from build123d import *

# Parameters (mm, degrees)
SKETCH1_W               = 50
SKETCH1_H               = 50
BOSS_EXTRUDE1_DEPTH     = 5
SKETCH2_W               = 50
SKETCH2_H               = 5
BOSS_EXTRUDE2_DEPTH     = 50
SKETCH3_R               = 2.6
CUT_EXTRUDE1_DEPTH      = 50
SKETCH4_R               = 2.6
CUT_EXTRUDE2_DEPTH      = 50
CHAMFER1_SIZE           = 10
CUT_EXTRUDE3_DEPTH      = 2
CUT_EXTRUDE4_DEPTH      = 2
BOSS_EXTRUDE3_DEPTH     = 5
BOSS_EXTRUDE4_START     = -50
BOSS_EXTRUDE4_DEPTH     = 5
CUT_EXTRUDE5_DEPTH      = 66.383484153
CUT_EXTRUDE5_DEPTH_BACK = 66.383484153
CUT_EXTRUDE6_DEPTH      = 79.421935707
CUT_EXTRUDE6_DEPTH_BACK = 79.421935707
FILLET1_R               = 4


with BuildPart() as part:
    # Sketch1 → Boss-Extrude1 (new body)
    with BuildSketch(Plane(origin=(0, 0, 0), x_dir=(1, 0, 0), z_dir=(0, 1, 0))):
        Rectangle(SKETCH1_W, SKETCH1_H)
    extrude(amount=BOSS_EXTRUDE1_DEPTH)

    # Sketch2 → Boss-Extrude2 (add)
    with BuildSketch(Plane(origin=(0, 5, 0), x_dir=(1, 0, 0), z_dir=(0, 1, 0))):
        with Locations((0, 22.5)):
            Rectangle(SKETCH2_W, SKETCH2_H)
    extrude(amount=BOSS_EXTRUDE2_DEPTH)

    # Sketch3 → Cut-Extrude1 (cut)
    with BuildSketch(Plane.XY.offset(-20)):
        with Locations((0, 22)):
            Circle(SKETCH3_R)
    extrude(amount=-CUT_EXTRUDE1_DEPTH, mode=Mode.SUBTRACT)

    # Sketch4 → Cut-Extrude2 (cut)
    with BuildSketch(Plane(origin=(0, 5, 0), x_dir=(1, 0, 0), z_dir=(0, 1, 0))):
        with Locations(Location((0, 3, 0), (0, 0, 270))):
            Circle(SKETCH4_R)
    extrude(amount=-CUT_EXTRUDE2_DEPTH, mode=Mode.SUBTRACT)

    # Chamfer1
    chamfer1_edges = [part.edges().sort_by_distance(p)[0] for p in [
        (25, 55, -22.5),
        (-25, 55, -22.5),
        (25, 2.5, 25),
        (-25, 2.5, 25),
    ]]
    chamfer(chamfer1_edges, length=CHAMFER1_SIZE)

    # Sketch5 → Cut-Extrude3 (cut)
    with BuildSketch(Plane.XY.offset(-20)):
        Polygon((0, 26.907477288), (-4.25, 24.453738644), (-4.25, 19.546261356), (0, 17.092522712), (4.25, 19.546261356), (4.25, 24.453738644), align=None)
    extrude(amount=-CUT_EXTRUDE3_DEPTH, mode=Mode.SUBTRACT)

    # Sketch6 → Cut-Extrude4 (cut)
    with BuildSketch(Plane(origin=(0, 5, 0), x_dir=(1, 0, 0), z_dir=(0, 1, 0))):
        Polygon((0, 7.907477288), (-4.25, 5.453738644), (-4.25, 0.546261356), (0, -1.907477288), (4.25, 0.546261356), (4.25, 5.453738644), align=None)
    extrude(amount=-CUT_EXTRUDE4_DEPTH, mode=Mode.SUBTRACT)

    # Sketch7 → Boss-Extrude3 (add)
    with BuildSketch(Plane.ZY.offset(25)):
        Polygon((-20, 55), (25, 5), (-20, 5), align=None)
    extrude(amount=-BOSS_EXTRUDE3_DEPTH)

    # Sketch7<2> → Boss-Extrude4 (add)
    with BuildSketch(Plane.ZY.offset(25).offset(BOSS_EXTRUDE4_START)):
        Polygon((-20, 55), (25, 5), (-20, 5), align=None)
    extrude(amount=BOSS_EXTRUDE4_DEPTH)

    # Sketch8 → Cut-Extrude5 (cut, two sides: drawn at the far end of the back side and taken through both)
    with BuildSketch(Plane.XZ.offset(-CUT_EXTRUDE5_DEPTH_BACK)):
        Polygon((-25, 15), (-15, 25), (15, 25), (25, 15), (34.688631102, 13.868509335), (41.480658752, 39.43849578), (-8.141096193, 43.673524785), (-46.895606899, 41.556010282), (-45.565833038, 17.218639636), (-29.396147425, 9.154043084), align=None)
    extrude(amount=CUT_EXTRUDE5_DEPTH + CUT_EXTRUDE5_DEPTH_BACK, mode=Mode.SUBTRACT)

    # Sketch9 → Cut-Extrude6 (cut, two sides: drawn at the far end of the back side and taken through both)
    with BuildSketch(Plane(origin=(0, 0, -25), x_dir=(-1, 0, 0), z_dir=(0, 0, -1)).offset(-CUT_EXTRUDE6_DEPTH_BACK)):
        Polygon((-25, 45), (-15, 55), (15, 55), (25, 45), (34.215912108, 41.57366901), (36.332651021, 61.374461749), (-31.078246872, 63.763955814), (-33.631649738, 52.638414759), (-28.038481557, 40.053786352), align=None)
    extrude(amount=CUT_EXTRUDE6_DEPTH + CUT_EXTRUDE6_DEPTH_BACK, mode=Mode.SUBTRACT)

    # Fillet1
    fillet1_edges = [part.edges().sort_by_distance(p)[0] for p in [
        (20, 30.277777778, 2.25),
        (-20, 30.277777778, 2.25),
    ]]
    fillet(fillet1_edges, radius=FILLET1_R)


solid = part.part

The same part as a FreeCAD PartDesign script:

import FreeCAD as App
import Part
import Sketcher
from FreeCAD import Vector
Q = App.Units.Quantity


def edges_at(feature, points):
    """Names of the edges that pass closest to the given points."""
    edges = feature.Shape.Edges
    near = lambda p: min(range(len(edges)), key=lambda i: edges[i].distToShape(Part.Vertex(*p))[0])
    return sorted({f"Edge{near(p) + 1}" for p in points})


def add_polygon(sketch, points):
    """Adds a closed chain of lines whose ends are joined by coincident constraints."""
    first, n = sketch.GeometryCount, len(points)
    for a, b in zip(points, points[1:] + points[:1]):
        sketch.addGeometry(Part.LineSegment(App.Vector(*a, 0), App.Vector(*b, 0)), False)
    for i in range(n):
        sketch.addConstraint(Sketcher.Constraint("Coincident", first + i, 2, first + (i + 1) % n, 1))

doc = App.newDocument("Part")
body = doc.addObject("PartDesign::Body", "Body")

sketch1 = doc.addObject("Sketcher::SketchObject", "Sketch")
body.addObject(sketch1)
sketch1.AttachmentSupport = (doc.XZ_Plane, [""])
sketch1.MapMode = "FlatFace"
add_polygon(sketch1, [(-25, -25), (-25, 25), (25, 25), (25, -25)])
sketch1.addConstraint(Sketcher.Constraint("Vertical", 0))
sketch1.addConstraint(Sketcher.Constraint("Horizontal", 1))
sketch1.addConstraint(Sketcher.Constraint("Vertical", 2))
sketch1.addConstraint(Sketcher.Constraint("Horizontal", 3))
sketch1.addConstraint(Sketcher.Constraint("Symmetric", 0, 2, 2, 2, -1, 1))
sketch1.addConstraint(Sketcher.Constraint("Equal", 3, 0))
sketch1.addConstraint(Sketcher.Constraint("DistanceX", 1, 1, 1, 2, 50.0))
pad1 = doc.addObject("PartDesign::Pad", "Pad")
body.addObject(pad1)
pad1.Profile = sketch1
pad1.Length = 5
pad1.Reversed = True

sketch2 = doc.addObject("Sketcher::SketchObject", "Sketch001")
body.addObject(sketch2)
sketch2.AttachmentSupport = (doc.XZ_Plane, [""])
sketch2.MapMode = "FlatFace"
sketch2.AttachmentOffset = App.Placement(Vector(0, 0, -5), App.Rotation())
add_polygon(sketch2, [(-25, -25), (-25, -20), (25, -20), (25, -25)])
sketch2.addConstraint(Sketcher.Constraint("Vertical", 0))
sketch2.addConstraint(Sketcher.Constraint("Horizontal", 1))
sketch2.addConstraint(Sketcher.Constraint("Vertical", 2))
sketch2.addConstraint(Sketcher.Constraint("Horizontal", 3))
sketch2.addConstraint(Sketcher.Constraint("DistanceX", 1, 1, 1, 2, 50.0))
sketch2.addConstraint(Sketcher.Constraint("DistanceY", 0, 1, 0, 2, 5.0))
sketch2.addConstraint(Sketcher.Constraint("DistanceX", 0, 2, -1, 1, 25.0))
sketch2.addConstraint(Sketcher.Constraint("DistanceY", 0, 2, -1, 1, 20.0))
pad2 = doc.addObject("PartDesign::Pad", "Pad001")
body.addObject(pad2)
pad2.Profile = sketch2
pad2.Length = 50
pad2.Reversed = True

sketch3 = doc.addObject("Sketcher::SketchObject", "Sketch002")
body.addObject(sketch3)
sketch3.AttachmentSupport = (doc.XY_Plane, [""])
sketch3.MapMode = "FlatFace"
sketch3.AttachmentOffset = App.Placement(Vector(0, 0, -20), App.Rotation())
sketch3.addGeometry(Part.Circle(Vector(0, 22, 0), Vector(0, 0, 1), 2.6), False)
sketch3.addConstraint(Sketcher.Constraint("PointOnObject", 0, 3, -2))
sketch3.addConstraint(Sketcher.Constraint("Diameter", 0, 5.2))
sketch3.addConstraint(Sketcher.Constraint("DistanceY", -1, 1, 0, 3, 22.0))
pocket1 = doc.addObject("PartDesign::Pocket", "Pocket")
body.addObject(pocket1)
pocket1.Profile = sketch3
pocket1.Length = 50

sketch4 = doc.addObject("Sketcher::SketchObject", "Sketch003")
body.addObject(sketch4)
sketch4.AttachmentSupport = (doc.XZ_Plane, [""])
sketch4.MapMode = "FlatFace"
sketch4.AttachmentOffset = App.Placement(Vector(0, 0, -5), App.Rotation())
sketch4.addGeometry(Part.Circle(Vector(0, -3, 0), Vector(0, 0, 1), 2.6), False)
sketch4.addConstraint(Sketcher.Constraint("PointOnObject", 0, 3, -2))
sketch4.addConstraint(Sketcher.Constraint("Diameter", 0, 5.2))
sketch4.addConstraint(Sketcher.Constraint("DistanceY", 0, 3, -1, 1, 3.0))
pocket2 = doc.addObject("PartDesign::Pocket", "Pocket001")
body.addObject(pocket2)
pocket2.Profile = sketch4
pocket2.Length = 50
pocket2.Reversed = True
doc.recompute()

chamfer = doc.addObject("PartDesign::Chamfer", "Chamfer")
body.addObject(chamfer)
chamfer.Base = (pocket2, edges_at(pocket2, [
    (25, 55, -22.5),
    (-25, 55, -22.5),
    (25, 2.5, 25),
    (-25, 2.5, 25),
]))
chamfer.Size = 10

sketch5 = doc.addObject("Sketcher::SketchObject", "Sketch004")
body.addObject(sketch5)
sketch5.AttachmentSupport = (doc.XY_Plane, [""])
sketch5.MapMode = "FlatFace"
sketch5.AttachmentOffset = App.Placement(Vector(0, 0, -20), App.Rotation())
add_polygon(sketch5, [(0, 26.907477), (-4.25, 24.453739), (-4.25, 19.546261), (0, 17.092523), (4.25, 19.546261), (4.25, 24.453739)])
sketch5.addConstraint(Sketcher.Constraint("Vertical", 1))
sketch5.addConstraint(Sketcher.Constraint("Vertical", 4))
sketch5.addConstraint(Sketcher.Constraint("Symmetric", 1, 2, 3, 2, -2))
sketch5.addConstraint(Sketcher.Constraint("PointOnObject", 2, 2, -2))
sketch5.addConstraint(Sketcher.Constraint("PointOnObject", 5, 2, -2))
sketch5.addConstraint(Sketcher.Constraint("Parallel", 0, 3))
sketch5.addConstraint(Sketcher.Constraint("Parallel", 2, 5))
sketch5.addConstraint(Sketcher.Constraint("Angle", 0, Q("-150 deg")))
sketch5.addConstraint(Sketcher.Constraint("DistanceX", 1, 2, 3, 2, 8.5))
sketch5.addConstraint(Sketcher.Constraint("DistanceY", 1, 2, 1, 1, 4.907477))
sketch5.addConstraint(Sketcher.Constraint("DistanceY", -1, 1, 0, 2, 24.453739))
pocket3 = doc.addObject("PartDesign::Pocket", "Pocket002")
body.addObject(pocket3)
pocket3.Profile = sketch5
pocket3.Length = 2

sketch6 = doc.addObject("Sketcher::SketchObject", "Sketch005")
body.addObject(sketch6)
sketch6.AttachmentSupport = (doc.XZ_Plane, [""])
sketch6.MapMode = "FlatFace"
sketch6.AttachmentOffset = App.Placement(Vector(0, 0, -5), App.Rotation())
add_polygon(sketch6, [(0, -7.907477), (-4.25, -5.453739), (-4.25, -0.546261), (0, 1.907477), (4.25, -0.546261), (4.25, -5.453739)])
sketch6.addConstraint(Sketcher.Constraint("Vertical", 1))
sketch6.addConstraint(Sketcher.Constraint("Vertical", 4))
sketch6.addConstraint(Sketcher.Constraint("Symmetric", 1, 2, 3, 2, -2))
sketch6.addConstraint(Sketcher.Constraint("PointOnObject", 2, 2, -2))
sketch6.addConstraint(Sketcher.Constraint("PointOnObject", 5, 2, -2))
sketch6.addConstraint(Sketcher.Constraint("Parallel", 0, 3))
sketch6.addConstraint(Sketcher.Constraint("Parallel", 2, 5))
sketch6.addConstraint(Sketcher.Constraint("Angle", 0, Q("150 deg")))
sketch6.addConstraint(Sketcher.Constraint("DistanceX", 1, 2, 3, 2, 8.5))
sketch6.addConstraint(Sketcher.Constraint("DistanceY", 1, 1, 1, 2, 4.907477))
sketch6.addConstraint(Sketcher.Constraint("DistanceY", 0, 2, -1, 1, 5.453739))
pocket4 = doc.addObject("PartDesign::Pocket", "Pocket003")
body.addObject(pocket4)
pocket4.Profile = sketch6
pocket4.Length = 2
pocket4.Reversed = True

sketch7 = doc.addObject("Sketcher::SketchObject", "Sketch006")
body.addObject(sketch7)
sketch7.AttachmentSupport = (doc.YZ_Plane, [""])
sketch7.MapMode = "FlatFace"
sketch7.AttachmentOffset = App.Placement(Vector(0, 0, -25), App.Rotation())
add_polygon(sketch7, [(5, 25), (55, -20), (5, -20)])
sketch7.addConstraint(Sketcher.Constraint("Horizontal", 1))
sketch7.addConstraint(Sketcher.Constraint("Vertical", 2))
sketch7.addConstraint(Sketcher.Constraint("DistanceX", 1, 2, 1, 1, 50.0))
sketch7.addConstraint(Sketcher.Constraint("DistanceY", 2, 1, 2, 2, 45.0))
sketch7.addConstraint(Sketcher.Constraint("DistanceX", -1, 1, 0, 2, 55.0))
sketch7.addConstraint(Sketcher.Constraint("DistanceY", 0, 2, -1, 1, 20.0))
pad3 = doc.addObject("PartDesign::Pad", "Pad002")
body.addObject(pad3)
pad3.Profile = sketch7
pad3.Length = 5

sketch8 = doc.addObject("Sketcher::SketchObject", "Sketch007")
body.addObject(sketch8)
sketch8.AttachmentSupport = (doc.YZ_Plane, [""])
sketch8.MapMode = "FlatFace"
sketch8.AttachmentOffset = App.Placement(Vector(0, 0, 25), App.Rotation())
add_polygon(sketch8, [(5, 25), (55, -20), (5, -20)])
sketch8.addConstraint(Sketcher.Constraint("Horizontal", 1))
sketch8.addConstraint(Sketcher.Constraint("Vertical", 2))
sketch8.addConstraint(Sketcher.Constraint("DistanceX", 1, 2, 1, 1, 50.0))
sketch8.addConstraint(Sketcher.Constraint("DistanceY", 2, 1, 2, 2, 45.0))
sketch8.addConstraint(Sketcher.Constraint("DistanceX", -1, 1, 0, 2, 55.0))
sketch8.addConstraint(Sketcher.Constraint("DistanceY", 0, 2, -1, 1, 20.0))
pad4 = doc.addObject("PartDesign::Pad", "Pad003")
body.addObject(pad4)
pad4.Profile = sketch8
pad4.Length = 5
pad4.Reversed = True

sketch9 = doc.addObject("Sketcher::SketchObject", "Sketch008")
body.addObject(sketch9)
sketch9.AttachmentSupport = (doc.XZ_Plane, [""])
sketch9.MapMode = "FlatFace"
add_polygon(sketch9, [(-25, 15), (-15, 25), (15, 25), (25, 15), (34.688631, 13.868509), (41.480659, 39.438496), (-8.141096, 43.673525), (-46.895607, 41.55601), (-45.565833, 17.21864), (-29.396147, 9.154043)])
sketch9.addConstraint(Sketcher.Constraint("Horizontal", 1))
sketch9.addConstraint(Sketcher.Constraint("Symmetric", 2, 2, 9, 2, -2))
sketch9.addConstraint(Sketcher.Constraint("Perpendicular", 0, 2))
sketch9.addConstraint(Sketcher.Constraint("Perpendicular", 6, 7))
sketch9.addConstraint(Sketcher.Constraint("Equal", 0, 2))
sketch9.addConstraint(Sketcher.Constraint("DistanceX", 1, 1, 1, 2, 30.0))
sketch9.addConstraint(Sketcher.Constraint("DistanceY", -1, 1, 0, 2, 25.0))
sketch9.addConstraint(Sketcher.Constraint("DistanceX", -1, 1, 2, 2, 25.0))
sketch9.addConstraint(Sketcher.Constraint("DistanceY", 3, 2, 6, 2, 27.687501))
sketch9.addConstraint(Sketcher.Constraint("Distance", 3, 9.754478))
sketch9.addConstraint(Sketcher.Constraint("Distance", 4, 26.456679))
sketch9.addConstraint(Sketcher.Constraint("Distance", 5, 49.802149))
sketch9.addConstraint(Sketcher.Constraint("Distance", 9, 7.31446))
sketch9.addConstraint(Sketcher.Constraint("DistanceX", -1, 1, 3, 2, 34.688631))
sketch9.addConstraint(Sketcher.Constraint("DistanceX", -1, 1, 4, 2, 41.480659))
sketch9.addConstraint(Sketcher.Constraint("DistanceY", -1, 1, 7, 2, 17.21864))
sketch9.addConstraint(Sketcher.Constraint("DistanceY", 4, 2, 5, 2, 4.235029))
sketch9.addConstraint(Sketcher.Constraint("DistanceX", 6, 2, 5, 2, 38.754511))
sketch9.addConstraint(Sketcher.Constraint("DistanceX", 6, 2, 8, 2, 17.499459))
pocket5 = doc.addObject("PartDesign::Pocket", "Pocket004")
body.addObject(pocket5)
pocket5.Profile = sketch9
pocket5.Type = "ThroughAll"
pocket5.Midplane = True

sketch10 = doc.addObject("Sketcher::SketchObject", "Sketch009")
body.addObject(sketch10)
sketch10.AttachmentSupport = (doc.XY_Plane, [""])
sketch10.MapMode = "FlatFace"
sketch10.AttachmentOffset = App.Placement(Vector(0, 0, -25), App.Rotation())
add_polygon(sketch10, [(25, 45), (15, 55), (-15, 55), (-25, 45), (-34.215912, 41.573669), (-36.332651, 61.374462), (31.078247, 63.763956), (33.63165, 52.638415), (28.038482, 40.053786)])
sketch10.addConstraint(Sketcher.Constraint("Horizontal", 1))
sketch10.addConstraint(Sketcher.Constraint("Symmetric", 2, 2, 8, 2, -2))
sketch10.addConstraint(Sketcher.Constraint("Perpendicular", 0, 2))
sketch10.addConstraint(Sketcher.Constraint("Equal", 0, 2))
sketch10.addConstraint(Sketcher.Constraint("DistanceX", 1, 2, 1, 1, 30.0))
sketch10.addConstraint(Sketcher.Constraint("DistanceY", -1, 1, 0, 2, 55.0))
sketch10.addConstraint(Sketcher.Constraint("DistanceX", 2, 2, -1, 1, 25.0))
sketch10.addConstraint(Sketcher.Constraint("Distance", 3, 9.832232))
sketch10.addConstraint(Sketcher.Constraint("Distance", 7, 13.77158))
sketch10.addConstraint(Sketcher.Constraint("DistanceY", -1, 1, 3, 2, 41.573669))
sketch10.addConstraint(Sketcher.Constraint("DistanceX", 4, 2, -1, 1, 36.332651))
sketch10.addConstraint(Sketcher.Constraint("DistanceY", -1, 1, 4, 2, 61.374462))
sketch10.addConstraint(Sketcher.Constraint("DistanceX", -1, 1, 6, 2, 33.63165))
sketch10.addConstraint(Sketcher.Constraint("DistanceX", -1, 1, 7, 2, 28.038482))
sketch10.addConstraint(Sketcher.Constraint("DistanceX", 3, 2, 5, 2, 65.294159))
sketch10.addConstraint(Sketcher.Constraint("DistanceY", 6, 2, 5, 2, 11.125541))
sketch10.addConstraint(Sketcher.Constraint("Distance", 5, 67.453234))
pocket6 = doc.addObject("PartDesign::Pocket", "Pocket005")
body.addObject(pocket6)
pocket6.Profile = sketch10
pocket6.Type = "ThroughAll"
pocket6.Midplane = True
doc.recompute()

fillet = doc.addObject("PartDesign::Fillet", "Fillet")
body.addObject(fillet)
fillet.Base = (pocket6, edges_at(pocket6, [(20, 30.278, 2.25), (-20, 30.278, 2.25)]))
fillet.Radius = 4

doc.recompute()
